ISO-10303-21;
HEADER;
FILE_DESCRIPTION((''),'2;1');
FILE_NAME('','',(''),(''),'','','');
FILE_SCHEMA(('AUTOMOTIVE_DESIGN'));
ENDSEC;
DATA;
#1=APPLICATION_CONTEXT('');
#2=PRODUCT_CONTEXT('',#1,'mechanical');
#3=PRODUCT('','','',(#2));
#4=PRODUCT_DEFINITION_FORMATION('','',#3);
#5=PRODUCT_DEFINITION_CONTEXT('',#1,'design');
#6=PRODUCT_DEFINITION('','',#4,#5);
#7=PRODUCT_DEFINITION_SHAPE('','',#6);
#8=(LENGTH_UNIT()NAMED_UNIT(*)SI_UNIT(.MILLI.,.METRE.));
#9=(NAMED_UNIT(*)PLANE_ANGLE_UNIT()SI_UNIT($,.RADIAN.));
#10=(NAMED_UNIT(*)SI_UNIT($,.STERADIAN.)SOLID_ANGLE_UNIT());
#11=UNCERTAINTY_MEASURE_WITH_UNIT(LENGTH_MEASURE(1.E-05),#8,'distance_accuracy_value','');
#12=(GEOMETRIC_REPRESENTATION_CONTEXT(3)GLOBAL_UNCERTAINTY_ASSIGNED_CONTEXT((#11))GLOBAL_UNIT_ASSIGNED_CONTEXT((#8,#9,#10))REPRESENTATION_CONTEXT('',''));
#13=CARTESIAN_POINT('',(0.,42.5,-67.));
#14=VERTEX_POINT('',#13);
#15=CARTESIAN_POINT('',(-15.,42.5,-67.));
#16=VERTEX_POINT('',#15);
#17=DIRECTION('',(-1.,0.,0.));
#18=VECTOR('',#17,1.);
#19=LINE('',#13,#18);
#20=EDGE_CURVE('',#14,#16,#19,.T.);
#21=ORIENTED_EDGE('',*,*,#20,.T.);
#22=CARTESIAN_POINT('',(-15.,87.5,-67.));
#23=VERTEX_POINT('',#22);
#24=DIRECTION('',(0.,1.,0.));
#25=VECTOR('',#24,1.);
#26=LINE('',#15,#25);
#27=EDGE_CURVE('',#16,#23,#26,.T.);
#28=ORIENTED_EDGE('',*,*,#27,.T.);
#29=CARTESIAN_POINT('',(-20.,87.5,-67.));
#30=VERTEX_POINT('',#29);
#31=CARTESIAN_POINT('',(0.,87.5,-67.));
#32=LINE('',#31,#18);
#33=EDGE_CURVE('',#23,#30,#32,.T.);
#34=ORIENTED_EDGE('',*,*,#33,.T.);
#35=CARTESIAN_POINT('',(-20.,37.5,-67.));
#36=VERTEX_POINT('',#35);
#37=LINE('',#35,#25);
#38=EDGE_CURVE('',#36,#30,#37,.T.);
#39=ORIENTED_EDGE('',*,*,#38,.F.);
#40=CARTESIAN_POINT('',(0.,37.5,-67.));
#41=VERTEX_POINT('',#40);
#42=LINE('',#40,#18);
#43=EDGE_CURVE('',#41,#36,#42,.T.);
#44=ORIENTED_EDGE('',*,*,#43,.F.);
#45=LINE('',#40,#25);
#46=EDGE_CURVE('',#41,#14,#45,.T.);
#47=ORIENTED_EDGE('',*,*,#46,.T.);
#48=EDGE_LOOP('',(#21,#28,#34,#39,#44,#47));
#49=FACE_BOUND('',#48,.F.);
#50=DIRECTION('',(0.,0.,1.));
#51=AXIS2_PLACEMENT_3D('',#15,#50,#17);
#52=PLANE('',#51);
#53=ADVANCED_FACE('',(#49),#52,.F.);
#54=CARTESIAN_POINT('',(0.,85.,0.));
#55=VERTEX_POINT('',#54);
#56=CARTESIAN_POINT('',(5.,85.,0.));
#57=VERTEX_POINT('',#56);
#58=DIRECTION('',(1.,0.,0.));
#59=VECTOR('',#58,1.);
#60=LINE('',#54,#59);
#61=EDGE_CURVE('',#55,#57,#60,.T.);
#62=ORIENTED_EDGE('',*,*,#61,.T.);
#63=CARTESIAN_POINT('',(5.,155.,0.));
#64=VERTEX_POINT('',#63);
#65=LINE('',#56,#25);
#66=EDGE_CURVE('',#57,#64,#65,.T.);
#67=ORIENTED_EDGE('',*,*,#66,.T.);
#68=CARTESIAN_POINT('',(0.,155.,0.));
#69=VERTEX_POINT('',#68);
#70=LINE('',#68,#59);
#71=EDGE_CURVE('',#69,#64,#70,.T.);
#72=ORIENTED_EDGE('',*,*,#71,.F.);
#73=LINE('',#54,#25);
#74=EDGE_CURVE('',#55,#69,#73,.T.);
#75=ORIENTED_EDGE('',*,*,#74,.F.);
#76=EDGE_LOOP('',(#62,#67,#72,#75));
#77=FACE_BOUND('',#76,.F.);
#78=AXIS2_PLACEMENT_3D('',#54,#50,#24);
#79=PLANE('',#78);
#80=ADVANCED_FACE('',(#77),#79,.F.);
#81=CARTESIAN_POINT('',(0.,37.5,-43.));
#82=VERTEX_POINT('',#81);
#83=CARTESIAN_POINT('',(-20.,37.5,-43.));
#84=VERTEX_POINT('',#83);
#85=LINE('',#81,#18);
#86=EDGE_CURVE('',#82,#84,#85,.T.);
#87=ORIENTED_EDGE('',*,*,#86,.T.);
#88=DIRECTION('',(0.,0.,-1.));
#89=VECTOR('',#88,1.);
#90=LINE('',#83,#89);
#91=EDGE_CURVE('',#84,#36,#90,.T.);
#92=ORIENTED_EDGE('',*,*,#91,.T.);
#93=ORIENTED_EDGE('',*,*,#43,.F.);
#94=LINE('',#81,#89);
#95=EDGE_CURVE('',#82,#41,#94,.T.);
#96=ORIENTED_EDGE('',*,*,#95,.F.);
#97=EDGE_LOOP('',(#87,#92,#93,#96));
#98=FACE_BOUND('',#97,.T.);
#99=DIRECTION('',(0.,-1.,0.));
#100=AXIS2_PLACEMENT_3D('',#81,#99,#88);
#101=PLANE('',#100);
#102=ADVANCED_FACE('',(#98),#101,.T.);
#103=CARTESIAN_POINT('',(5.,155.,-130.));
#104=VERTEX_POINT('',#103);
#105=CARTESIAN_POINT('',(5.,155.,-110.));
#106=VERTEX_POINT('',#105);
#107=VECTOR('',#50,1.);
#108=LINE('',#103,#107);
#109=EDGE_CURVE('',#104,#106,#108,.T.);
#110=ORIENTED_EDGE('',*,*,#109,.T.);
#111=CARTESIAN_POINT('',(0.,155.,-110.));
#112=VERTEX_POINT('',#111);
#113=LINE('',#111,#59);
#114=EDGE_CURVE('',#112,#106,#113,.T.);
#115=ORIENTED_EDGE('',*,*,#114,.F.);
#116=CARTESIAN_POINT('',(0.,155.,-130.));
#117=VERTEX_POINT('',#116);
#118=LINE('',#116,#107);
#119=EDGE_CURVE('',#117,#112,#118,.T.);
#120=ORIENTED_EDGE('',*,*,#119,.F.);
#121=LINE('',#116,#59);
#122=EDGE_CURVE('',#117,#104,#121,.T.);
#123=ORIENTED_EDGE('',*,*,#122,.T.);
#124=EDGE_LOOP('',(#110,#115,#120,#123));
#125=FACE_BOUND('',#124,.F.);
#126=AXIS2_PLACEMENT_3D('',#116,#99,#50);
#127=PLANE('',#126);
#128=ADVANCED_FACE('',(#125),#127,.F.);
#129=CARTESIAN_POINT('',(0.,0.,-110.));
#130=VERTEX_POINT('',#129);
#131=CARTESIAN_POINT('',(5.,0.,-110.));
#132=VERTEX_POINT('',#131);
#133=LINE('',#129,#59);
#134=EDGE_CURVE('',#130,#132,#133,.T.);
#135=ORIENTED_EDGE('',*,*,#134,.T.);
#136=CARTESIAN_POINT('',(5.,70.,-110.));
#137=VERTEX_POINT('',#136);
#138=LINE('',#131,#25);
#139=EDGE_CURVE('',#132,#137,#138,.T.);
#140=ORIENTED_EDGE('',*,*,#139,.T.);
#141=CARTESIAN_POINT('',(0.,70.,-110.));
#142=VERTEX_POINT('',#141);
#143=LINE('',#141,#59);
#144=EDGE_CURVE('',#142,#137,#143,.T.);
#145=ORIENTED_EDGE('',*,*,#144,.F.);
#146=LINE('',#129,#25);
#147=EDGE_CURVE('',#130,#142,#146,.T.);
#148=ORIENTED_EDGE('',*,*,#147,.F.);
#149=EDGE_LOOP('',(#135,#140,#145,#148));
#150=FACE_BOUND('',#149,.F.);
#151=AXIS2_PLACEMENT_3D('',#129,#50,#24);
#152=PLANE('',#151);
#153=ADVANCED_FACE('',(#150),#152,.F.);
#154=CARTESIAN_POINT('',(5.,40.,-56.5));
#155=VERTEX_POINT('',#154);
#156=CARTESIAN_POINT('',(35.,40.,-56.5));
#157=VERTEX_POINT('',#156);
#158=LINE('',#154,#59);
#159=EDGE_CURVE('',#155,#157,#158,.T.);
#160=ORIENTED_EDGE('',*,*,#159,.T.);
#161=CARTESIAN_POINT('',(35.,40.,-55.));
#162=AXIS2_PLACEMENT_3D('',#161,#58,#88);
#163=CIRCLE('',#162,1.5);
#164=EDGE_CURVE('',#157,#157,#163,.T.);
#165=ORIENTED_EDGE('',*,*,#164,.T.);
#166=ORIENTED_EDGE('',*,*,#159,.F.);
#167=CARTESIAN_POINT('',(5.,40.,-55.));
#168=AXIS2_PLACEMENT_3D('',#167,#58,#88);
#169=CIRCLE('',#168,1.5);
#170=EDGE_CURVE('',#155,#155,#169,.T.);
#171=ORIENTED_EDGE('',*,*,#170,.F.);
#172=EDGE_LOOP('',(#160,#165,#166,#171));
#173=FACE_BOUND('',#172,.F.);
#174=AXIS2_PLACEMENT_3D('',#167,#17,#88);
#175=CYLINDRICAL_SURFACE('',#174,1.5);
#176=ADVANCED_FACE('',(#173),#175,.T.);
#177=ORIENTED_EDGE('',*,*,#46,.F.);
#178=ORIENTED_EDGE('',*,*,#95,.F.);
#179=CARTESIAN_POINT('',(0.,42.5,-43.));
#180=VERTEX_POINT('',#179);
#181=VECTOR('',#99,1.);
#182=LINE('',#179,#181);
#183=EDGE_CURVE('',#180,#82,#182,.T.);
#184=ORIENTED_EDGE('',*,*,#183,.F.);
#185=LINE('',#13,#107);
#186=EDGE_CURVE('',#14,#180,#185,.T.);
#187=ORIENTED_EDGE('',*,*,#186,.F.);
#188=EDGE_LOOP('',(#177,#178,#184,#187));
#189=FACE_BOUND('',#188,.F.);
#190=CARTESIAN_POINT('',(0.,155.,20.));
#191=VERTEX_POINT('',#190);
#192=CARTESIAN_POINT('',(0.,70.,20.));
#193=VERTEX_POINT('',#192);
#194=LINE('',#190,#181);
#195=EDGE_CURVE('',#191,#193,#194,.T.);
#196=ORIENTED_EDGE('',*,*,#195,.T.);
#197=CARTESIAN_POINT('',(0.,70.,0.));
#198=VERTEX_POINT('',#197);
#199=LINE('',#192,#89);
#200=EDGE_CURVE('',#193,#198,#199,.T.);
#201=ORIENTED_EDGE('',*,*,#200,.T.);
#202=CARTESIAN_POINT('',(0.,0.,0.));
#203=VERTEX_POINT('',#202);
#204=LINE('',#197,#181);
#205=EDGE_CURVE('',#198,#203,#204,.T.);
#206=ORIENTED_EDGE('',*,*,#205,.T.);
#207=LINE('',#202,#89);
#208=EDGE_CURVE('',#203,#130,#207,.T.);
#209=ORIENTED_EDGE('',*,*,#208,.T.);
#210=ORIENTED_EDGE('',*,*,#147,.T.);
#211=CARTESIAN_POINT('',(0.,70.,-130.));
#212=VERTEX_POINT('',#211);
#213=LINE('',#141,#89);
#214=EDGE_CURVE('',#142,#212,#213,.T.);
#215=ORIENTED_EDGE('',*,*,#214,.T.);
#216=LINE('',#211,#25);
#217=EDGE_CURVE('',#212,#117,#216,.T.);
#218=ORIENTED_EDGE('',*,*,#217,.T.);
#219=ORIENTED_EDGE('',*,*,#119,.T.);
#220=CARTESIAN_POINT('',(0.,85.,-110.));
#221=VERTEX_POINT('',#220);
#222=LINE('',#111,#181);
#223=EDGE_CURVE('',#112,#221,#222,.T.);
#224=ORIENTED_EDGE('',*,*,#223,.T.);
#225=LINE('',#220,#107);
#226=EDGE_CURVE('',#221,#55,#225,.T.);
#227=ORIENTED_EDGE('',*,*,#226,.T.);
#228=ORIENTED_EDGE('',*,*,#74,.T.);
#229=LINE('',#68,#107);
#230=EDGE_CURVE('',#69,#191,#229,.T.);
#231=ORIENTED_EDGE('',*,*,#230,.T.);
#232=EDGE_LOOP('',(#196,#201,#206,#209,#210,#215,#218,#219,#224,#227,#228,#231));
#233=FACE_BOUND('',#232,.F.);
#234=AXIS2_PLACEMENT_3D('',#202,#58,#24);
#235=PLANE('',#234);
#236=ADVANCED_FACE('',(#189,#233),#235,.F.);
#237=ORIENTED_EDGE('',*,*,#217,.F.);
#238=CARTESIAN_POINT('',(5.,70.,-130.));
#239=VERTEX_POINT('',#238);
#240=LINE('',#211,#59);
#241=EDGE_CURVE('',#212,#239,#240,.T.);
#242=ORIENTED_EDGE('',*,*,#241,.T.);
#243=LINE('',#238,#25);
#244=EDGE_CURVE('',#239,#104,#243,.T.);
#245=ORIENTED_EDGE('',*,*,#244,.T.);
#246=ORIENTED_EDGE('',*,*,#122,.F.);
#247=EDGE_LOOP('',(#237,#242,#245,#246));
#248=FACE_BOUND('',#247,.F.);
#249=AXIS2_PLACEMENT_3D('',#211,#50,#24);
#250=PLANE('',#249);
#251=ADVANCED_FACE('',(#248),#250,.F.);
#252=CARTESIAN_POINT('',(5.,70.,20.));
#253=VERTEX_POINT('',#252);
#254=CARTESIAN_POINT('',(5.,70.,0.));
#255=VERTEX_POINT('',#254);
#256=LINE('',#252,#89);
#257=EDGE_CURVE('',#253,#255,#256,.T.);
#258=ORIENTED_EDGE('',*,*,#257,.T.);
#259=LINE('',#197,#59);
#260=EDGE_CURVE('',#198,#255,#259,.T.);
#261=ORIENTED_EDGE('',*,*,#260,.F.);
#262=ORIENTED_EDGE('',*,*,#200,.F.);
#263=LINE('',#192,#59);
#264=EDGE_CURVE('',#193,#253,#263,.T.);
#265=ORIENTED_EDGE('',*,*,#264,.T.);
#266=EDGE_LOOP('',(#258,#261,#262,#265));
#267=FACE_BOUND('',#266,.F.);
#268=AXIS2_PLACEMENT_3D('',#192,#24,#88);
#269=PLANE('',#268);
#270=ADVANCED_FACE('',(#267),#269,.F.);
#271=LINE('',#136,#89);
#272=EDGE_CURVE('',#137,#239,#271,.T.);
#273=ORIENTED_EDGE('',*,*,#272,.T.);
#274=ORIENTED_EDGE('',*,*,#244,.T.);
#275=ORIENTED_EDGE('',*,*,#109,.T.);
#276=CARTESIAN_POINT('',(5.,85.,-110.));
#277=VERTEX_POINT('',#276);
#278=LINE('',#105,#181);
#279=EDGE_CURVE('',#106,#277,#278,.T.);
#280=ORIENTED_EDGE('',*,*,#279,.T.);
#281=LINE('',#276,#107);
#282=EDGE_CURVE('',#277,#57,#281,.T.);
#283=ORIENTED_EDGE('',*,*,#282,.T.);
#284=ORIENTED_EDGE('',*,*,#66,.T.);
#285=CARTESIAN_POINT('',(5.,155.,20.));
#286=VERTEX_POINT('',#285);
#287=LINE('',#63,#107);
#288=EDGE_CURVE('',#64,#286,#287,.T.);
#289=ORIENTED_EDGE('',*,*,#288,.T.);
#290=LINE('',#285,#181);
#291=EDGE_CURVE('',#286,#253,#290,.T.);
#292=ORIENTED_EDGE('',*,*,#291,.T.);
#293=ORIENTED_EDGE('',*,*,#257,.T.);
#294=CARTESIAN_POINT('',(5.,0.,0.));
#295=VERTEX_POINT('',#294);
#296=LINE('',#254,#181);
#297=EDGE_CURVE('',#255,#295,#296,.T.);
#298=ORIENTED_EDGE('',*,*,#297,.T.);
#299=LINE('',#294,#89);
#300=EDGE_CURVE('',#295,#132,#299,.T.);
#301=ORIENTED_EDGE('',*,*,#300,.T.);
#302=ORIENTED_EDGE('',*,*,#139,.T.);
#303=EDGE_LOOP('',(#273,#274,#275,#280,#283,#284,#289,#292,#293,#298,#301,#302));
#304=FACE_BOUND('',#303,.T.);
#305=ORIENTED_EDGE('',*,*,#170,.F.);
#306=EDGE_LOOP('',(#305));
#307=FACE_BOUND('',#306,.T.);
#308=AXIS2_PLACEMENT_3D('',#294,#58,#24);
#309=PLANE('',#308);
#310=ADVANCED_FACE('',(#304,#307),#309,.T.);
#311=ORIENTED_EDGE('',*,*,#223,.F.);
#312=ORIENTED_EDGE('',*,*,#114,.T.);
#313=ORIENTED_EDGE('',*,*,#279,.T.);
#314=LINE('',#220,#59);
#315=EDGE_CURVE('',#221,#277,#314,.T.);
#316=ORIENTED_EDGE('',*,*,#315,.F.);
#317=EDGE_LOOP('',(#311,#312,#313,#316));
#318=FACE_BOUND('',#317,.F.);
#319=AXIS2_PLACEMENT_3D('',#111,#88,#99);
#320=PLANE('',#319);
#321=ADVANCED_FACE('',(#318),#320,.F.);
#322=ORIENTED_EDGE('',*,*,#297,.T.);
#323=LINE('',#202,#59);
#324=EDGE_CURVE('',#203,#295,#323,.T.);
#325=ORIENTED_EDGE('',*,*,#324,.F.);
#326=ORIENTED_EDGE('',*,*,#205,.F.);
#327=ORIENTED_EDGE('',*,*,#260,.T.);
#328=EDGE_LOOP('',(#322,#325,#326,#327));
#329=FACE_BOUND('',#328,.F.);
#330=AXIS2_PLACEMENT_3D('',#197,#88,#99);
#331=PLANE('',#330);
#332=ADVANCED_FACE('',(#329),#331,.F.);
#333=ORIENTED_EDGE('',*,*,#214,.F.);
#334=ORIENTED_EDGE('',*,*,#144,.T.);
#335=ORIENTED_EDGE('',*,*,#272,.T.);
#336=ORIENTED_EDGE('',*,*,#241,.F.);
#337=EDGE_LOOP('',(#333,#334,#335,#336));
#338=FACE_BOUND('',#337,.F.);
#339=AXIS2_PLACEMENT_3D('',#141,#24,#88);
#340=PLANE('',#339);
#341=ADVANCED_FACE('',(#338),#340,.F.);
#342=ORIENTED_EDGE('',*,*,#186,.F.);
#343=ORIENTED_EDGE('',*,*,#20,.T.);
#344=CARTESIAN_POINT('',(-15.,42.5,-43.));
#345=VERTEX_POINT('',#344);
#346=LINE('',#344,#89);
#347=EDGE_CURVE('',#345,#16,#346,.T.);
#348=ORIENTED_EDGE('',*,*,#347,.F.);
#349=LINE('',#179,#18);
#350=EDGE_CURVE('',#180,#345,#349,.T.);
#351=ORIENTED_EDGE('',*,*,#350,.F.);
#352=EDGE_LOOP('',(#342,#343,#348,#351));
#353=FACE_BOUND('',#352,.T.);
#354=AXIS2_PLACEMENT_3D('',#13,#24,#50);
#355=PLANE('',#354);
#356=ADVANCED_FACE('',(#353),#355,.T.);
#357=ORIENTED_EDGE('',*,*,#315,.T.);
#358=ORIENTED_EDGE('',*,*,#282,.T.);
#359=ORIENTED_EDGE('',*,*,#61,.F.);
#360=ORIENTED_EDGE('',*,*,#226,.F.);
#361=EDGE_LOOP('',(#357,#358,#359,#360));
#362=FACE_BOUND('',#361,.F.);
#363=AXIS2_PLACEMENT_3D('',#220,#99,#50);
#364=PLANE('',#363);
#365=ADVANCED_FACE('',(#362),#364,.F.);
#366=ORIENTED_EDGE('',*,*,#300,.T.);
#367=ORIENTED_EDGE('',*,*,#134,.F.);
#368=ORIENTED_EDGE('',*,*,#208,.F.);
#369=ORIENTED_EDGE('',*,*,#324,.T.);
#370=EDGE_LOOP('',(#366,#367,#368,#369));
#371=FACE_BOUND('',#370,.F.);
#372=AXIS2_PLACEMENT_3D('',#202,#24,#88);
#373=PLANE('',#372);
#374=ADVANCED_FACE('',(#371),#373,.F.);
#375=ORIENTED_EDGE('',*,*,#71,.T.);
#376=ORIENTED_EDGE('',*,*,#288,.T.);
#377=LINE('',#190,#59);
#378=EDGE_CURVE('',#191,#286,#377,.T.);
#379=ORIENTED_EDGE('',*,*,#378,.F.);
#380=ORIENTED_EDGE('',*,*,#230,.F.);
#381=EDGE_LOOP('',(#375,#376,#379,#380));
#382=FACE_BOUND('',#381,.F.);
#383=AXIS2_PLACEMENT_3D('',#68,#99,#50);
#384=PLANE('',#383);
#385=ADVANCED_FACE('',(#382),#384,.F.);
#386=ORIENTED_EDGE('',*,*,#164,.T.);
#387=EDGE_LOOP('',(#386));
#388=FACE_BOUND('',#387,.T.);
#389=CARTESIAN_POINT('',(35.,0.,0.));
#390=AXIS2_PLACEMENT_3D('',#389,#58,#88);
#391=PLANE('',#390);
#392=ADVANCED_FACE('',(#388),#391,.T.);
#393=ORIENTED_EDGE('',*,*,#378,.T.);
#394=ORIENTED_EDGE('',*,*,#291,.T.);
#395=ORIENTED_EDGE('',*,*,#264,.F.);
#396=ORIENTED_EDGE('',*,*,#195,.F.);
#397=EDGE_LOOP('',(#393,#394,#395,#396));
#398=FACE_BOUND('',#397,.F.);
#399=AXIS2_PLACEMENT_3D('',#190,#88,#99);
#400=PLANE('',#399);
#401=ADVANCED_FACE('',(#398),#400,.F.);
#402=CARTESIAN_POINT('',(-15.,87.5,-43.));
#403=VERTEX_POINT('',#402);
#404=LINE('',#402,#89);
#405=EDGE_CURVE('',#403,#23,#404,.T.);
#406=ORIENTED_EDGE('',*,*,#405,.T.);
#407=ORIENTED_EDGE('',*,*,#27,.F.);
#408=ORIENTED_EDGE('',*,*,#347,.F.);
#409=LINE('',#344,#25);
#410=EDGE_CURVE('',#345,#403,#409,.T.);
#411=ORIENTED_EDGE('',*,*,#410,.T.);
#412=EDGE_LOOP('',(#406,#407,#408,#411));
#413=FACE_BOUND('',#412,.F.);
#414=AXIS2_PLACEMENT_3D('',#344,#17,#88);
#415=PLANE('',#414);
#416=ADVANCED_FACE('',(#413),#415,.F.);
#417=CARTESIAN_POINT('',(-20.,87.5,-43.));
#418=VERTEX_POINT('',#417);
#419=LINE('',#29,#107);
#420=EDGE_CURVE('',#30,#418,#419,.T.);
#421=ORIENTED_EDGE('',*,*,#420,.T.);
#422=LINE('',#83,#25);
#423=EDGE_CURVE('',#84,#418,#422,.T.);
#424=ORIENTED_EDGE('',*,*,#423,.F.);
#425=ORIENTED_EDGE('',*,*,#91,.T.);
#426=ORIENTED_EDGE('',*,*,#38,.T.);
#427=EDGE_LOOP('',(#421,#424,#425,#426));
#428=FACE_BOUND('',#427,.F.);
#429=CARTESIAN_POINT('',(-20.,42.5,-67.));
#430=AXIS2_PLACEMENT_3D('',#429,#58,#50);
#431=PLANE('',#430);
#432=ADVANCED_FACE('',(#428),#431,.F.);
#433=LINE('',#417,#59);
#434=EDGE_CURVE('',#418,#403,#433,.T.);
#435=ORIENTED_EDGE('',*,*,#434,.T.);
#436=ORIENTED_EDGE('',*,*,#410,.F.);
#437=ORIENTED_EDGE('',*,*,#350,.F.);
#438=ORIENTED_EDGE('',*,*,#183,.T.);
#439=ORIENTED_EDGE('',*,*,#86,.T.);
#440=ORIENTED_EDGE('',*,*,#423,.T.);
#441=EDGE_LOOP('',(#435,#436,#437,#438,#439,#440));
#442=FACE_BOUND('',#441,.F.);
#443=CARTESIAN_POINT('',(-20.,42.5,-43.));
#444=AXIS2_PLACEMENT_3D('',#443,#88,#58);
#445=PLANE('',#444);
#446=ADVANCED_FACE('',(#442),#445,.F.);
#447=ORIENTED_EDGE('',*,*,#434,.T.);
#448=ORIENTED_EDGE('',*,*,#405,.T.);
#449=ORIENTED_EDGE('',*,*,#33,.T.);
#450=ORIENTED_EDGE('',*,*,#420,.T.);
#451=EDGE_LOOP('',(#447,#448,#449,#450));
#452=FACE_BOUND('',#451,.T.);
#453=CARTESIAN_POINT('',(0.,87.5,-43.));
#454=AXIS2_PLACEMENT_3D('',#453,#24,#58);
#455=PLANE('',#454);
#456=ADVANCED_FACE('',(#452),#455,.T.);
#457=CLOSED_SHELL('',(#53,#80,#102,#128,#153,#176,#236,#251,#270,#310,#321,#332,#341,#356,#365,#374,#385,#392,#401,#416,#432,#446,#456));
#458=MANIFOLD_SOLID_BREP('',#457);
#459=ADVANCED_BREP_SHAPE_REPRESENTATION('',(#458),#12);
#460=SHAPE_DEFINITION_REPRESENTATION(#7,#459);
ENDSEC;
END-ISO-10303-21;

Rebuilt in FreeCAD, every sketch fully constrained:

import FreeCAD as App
import Part
import Sketcher

V = App.Vector
Q = App.Units.Quantity

doc = App.newDocument("Part")
body = doc.addObject("PartDesign::Body", "Body")

# Sketch on YZ plane
sketch1 = doc.addObject("Sketcher::SketchObject", "Sketch")
body.addObject(sketch1)
sketch1.AttachmentSupport = (doc.YZ_Plane, [""])
sketch1.MapMode = "FlatFace"
sketch1.addGeometry([
    Part.LineSegment(V(70, 0, 0), V(0, 0, 0)),  # 0
    Part.LineSegment(V(0, 0, 0), V(0, -110, 0)),  # 1
    Part.LineSegment(V(0, -110, 0), V(70, -110, 0)),  # 2
    Part.LineSegment(V(70, -110, 0), V(70, -130, 0)),  # 3
    Part.LineSegment(V(70, -130, 0), V(155, -130, 0)),  # 4
    Part.LineSegment(V(155, -130, 0), V(155, -110, 0)),  # 5
    Part.LineSegment(V(155, -110, 0), V(85, -110, 0)),  # 6
    Part.LineSegment(V(85, -110, 0), V(85, 0, 0)),  # 7
    Part.LineSegment(V(85, 0, 0), V(155, 0, 0)),  # 8
    Part.LineSegment(V(155, 0, 0), V(155, 20, 0)),  # 9
    Part.LineSegment(V(155, 20, 0), V(70, 20, 0)),  # 10
    Part.LineSegment(V(70, 20, 0), V(70, 0, 0)),  # 11
], False)
sketch1.addConstraint([
    Sketcher.Constraint("Coincident", 0, 2, 1, 1),
    Sketcher.Constraint("Coincident", 1, 2, 2, 1),
    Sketcher.Constraint("Coincident", 2, 2, 3, 1),
    Sketcher.Constraint("Coincident", 3, 2, 4, 1),
    Sketcher.Constraint("Coincident", 4, 2, 5, 1),
    Sketcher.Constraint("Coincident", 5, 2, 6, 1),
    Sketcher.Constraint("Coincident", 6, 2, 7, 1),
    Sketcher.Constraint("Coincident", 7, 2, 8, 1),
    Sketcher.Constraint("Coincident", 8, 2, 9, 1),
    Sketcher.Constraint("Coincident", 9, 2, 10, 1),
    Sketcher.Constraint("Coincident", 10, 2, 11, 1),
    Sketcher.Constraint("Coincident", 11, 2, 0, 1),
    Sketcher.Constraint("Horizontal", 0),
    Sketcher.Constraint("Vertical", 1),
    Sketcher.Constraint("Horizontal", 2),
    Sketcher.Constraint("Vertical", 3),
    Sketcher.Constraint("Horizontal", 4),
    Sketcher.Constraint("Vertical", 5),
    Sketcher.Constraint("Horizontal", 6),
    Sketcher.Constraint("Vertical", 7),
    Sketcher.Constraint("Horizontal", 8),
    Sketcher.Constraint("Vertical", 9),
    Sketcher.Constraint("Horizontal", 10),
    Sketcher.Constraint("Vertical", 11),
    Sketcher.Constraint("Coincident", 0, 2, -1, 1),
    Sketcher.Constraint("PointOnObject", 7, 2, -1),
    Sketcher.Constraint("Horizontal", 2, 2, 5, 2),
    Sketcher.Constraint("Vertical", 5, 2, 8, 2),
    Sketcher.Constraint("Vertical", 3, 2, 10, 2),
    Sketcher.Constraint("Equal", 2, 6),
    Sketcher.Constraint("Equal", 5, 9),
    Sketcher.Constraint("DistanceX", 0, 2, 0, 1, Q("70 mm")),
    Sketcher.Constraint("DistanceX", 4, 1, 4, 2, Q("85 mm")),
    Sketcher.Constraint("DistanceY", 1, 2, 1, 1, Q("110 mm")),
    Sketcher.Constraint("DistanceY", 3, 2, 3, 1, Q("20 mm")),
])
pad1 = doc.addObject("PartDesign::Pad", "Pad")
body.addObject(pad1)
pad1.Profile = sketch1
pad1.Length = 5

# Sketch on YZ plane
sketch2 = doc.addObject("Sketcher::SketchObject", "Sketch001")
body.addObject(sketch2)
sketch2.AttachmentSupport = (doc.YZ_Plane, [""])
sketch2.MapMode = "FlatFace"
sketch2.AttachmentOffset = App.Placement(V(0, 0, 5), App.Rotation())
sketch2.addGeometry(Part.Circle(V(40, -55, 0), V(0, 0, 1), 1.5), False)
sketch2.addConstraint([
    Sketcher.Constraint("Diameter", 0, Q("3 mm")),
    Sketcher.Constraint("DistanceX", -1, 1, 0, 3, Q("40 mm")),
    Sketcher.Constraint("DistanceY", 0, 3, -1, 1, Q("55 mm")),
])
pad2 = doc.addObject("PartDesign::Pad", "Pad001")
body.addObject(pad2)
pad2.Profile = sketch2
pad2.Length = 30

# Sketch on YZ plane
sketch3 = doc.addObject("Sketcher::SketchObject", "Sketch002")
body.addObject(sketch3)
sketch3.AttachmentSupport = (doc.YZ_Plane, [""])
sketch3.MapMode = "FlatFace"
sketch3.addGeometry([
    Part.LineSegment(V(42, -43, 0), V(42, -67, 0)),
    Part.LineSegment(V(42, -67, 0), V(38, -67, 0)),
    Part.LineSegment(V(38, -67, 0), V(38, -43, 0)),
    Part.LineSegment(V(38, -43, 0), V(42, -43, 0)),
], False)
sketch3.addConstraint([
    Sketcher.Constraint("Coincident", 0, 2, 1, 1),
    Sketcher.Constraint("Coincident", 1, 2, 2, 1),
    Sketcher.Constraint("Coincident", 2, 2, 3, 1),
    Sketcher.Constraint("Coincident", 3, 2, 0, 1),
    Sketcher.Constraint("Vertical", 0),
    Sketcher.Constraint("Horizontal", 1),
    Sketcher.Constraint("Vertical", 2),
    Sketcher.Constraint("Horizontal", 3),
    Sketcher.Constraint("DistanceX", 1, 2, 1, 1, Q("5 mm")),
    Sketcher.Constraint("DistanceY", 0, 2, 0, 1, Q("24 mm")),
    Sketcher.Constraint("DistanceY", 0, 2, -1, 1, Q("67 mm")),
    Sketcher.Constraint("DistanceX", -1, 1, 0, 2, Q("42.5 mm")),
])
pad3 = doc.addObject("PartDesign::Pad", "Pad002")
body.addObject(pad3)
pad3.Profile = sketch3
pad3.Length = 20
pad3.Reversed = True

# Sketch on XZ plane
sketch4 = doc.addObject("Sketcher::SketchObject", "Sketch003")
body.addObject(sketch4)
sketch4.AttachmentSupport = (doc.XZ_Plane, [""])
sketch4.MapMode = "FlatFace"
sketch4.AttachmentOffset = App.Placement(V(0, 0, -42.5), App.Rotation())
sketch4.addGeometry([
    Part.LineSegment(V(-15, -67, 0), V(-20, -67, 0)),
    Part.LineSegment(V(-20, -67, 0), V(-20, -43, 0)),
    Part.LineSegment(V(-20, -43, 0), V(-15, -43, 0)),
    Part.LineSegment(V(-15, -43, 0), V(-15, -67, 0)),
], False)
sketch4.addConstraint([
    Sketcher.Constraint("Coincident", 0, 2, 1, 1),
    Sketcher.Constraint("Coincident", 1, 2, 2, 1),
    Sketcher.Constraint("Coincident", 2, 2, 3, 1),
    Sketcher.Constraint("Coincident", 3, 2, 0, 1),
    Sketcher.Constraint("Horizontal", 0),
    Sketcher.Constraint("Vertical", 1),
    Sketcher.Constraint("Horizontal", 2),
    Sketcher.Constraint("Vertical", 3),
    Sketcher.Constraint("DistanceX", 0, 2, 0, 1, Q("5 mm")),
    Sketcher.Constraint("DistanceY", 1, 1, 1, 2, Q("24 mm")),
    Sketcher.Constraint("DistanceX", 0, 2, -1, 1, Q("20 mm")),
    Sketcher.Constraint("DistanceY", 0, 2, -1, 1, Q("67 mm")),
])
pad4 = doc.addObject("PartDesign::Pad", "Pad003")
body.addObject(pad4)
pad4.Profile = sketch4
pad4.Length = 45
pad4.Reversed = True

doc.recompute()
